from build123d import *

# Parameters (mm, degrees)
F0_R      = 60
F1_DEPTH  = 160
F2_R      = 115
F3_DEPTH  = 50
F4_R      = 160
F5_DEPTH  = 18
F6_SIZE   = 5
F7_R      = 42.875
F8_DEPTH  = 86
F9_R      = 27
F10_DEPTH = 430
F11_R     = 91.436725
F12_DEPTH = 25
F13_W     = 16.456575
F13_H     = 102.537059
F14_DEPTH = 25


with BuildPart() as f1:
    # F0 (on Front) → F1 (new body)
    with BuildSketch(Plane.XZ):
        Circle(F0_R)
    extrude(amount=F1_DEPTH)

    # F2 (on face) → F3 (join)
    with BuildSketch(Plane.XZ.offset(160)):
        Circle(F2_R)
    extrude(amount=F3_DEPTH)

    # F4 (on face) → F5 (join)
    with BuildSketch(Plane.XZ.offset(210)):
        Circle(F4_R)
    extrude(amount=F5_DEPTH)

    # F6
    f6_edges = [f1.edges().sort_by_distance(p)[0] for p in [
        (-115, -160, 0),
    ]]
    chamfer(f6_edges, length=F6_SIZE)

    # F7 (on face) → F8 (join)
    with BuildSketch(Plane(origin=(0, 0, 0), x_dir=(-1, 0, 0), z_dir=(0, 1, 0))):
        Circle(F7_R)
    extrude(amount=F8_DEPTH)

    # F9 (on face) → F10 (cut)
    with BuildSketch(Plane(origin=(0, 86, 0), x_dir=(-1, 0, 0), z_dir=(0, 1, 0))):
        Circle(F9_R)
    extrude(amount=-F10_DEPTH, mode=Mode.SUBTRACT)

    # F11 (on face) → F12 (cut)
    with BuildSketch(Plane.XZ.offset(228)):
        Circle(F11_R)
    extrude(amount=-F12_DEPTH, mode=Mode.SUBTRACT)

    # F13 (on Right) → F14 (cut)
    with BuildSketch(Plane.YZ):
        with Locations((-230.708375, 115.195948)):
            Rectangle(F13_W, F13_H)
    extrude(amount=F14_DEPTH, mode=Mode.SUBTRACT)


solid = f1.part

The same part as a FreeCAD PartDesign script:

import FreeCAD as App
import Part
import Sketcher
from FreeCAD import Vector
Q = App.Units.Quantity


def edges_at(feature, points):
    """Names of the edges that pass closest to the given points."""
    edges = feature.Shape.Edges
    near = lambda p: min(range(len(edges)), key=lambda i: edges[i].distToShape(Part.Vertex(*p))[0])
    return sorted({f"Edge{near(p) + 1}" for p in points})


def add_polygon(sketch, points):
    """Adds a closed chain of lines whose ends are joined by coincident constraints."""
    first, n = sketch.GeometryCount, len(points)
    for a, b in zip(points, points[1:] + points[:1]):
        sketch.addGeometry(Part.LineSegment(App.Vector(*a, 0), App.Vector(*b, 0)), False)
    for i in range(n):
        sketch.addConstraint(Sketcher.Constraint("Coincident", first + i, 2, first + (i + 1) % n, 1))

doc = App.newDocument("Part")
body = doc.addObject("PartDesign::Body", "Body")

sketch1 = body.newObject("Sketcher::SketchObject", "Sketch")
sketch1.AttachmentSupport = (doc.getObject("XZ_Plane"), [""])
sketch1.MapMode = "FlatFace"
sketch1.addGeometry(Part.Circle(Vector(0, 0, 0), Vector(0, 0, 1), 60), False)
sketch1.addConstraint([
    Sketcher.Constraint("Coincident", 0, 3, -1, 1),
    Sketcher.Constraint("Diameter", 0, Q("120 mm")),
])
pad1 = body.newObject("PartDesign::Pad", "Pad")
pad1.Profile = sketch1
pad1.Length = 160

sketch2 = body.newObject("Sketcher::SketchObject", "Sketch001")
sketch2.AttachmentSupport = (doc.getObject("XZ_Plane"), [""])
sketch2.MapMode = "FlatFace"
sketch2.AttachmentOffset = App.Placement(Vector(0, 0, 160), App.Rotation())
sketch2.addGeometry(Part.Circle(Vector(0, 0, 0), Vector(0, 0, 1), 115), False)
sketch2.addConstraint([
    Sketcher.Constraint("Coincident", 0, 3, -1, 1),
    Sketcher.Constraint("Diameter", 0, Q("230 mm")),
])
pad2 = body.newObject("PartDesign::Pad", "Pad001")
pad2.Profile = sketch2
pad2.Length = 50

sketch3 = body.newObject("Sketcher::SketchObject", "Sketch002")
sketch3.AttachmentSupport = (doc.getObject("XZ_Plane"), [""])
sketch3.MapMode = "FlatFace"
sketch3.AttachmentOffset = App.Placement(Vector(0, 0, 210), App.Rotation())
sketch3.addGeometry(Part.Circle(Vector(0, 0, 0), Vector(0, 0, 1), 160), False)
sketch3.addConstraint([
    Sketcher.Constraint("Coincident", 0, 3, -1, 1),
    Sketcher.Constraint("Diameter", 0, Q("320 mm")),
])
pad3 = body.newObject("PartDesign::Pad", "Pad002")
pad3.Profile = sketch3
pad3.Length = 18
doc.recompute()

chamfer = body.newObject("PartDesign::Chamfer", "Chamfer")
chamfer.Base = (pad3, edges_at(pad3, [(-115, -160, 0)]))
chamfer.Size = 5

sketch4 = body.newObject("Sketcher::SketchObject", "Sketch003")
sketch4.AttachmentSupport = (doc.getObject("XZ_Plane"), [""])
sketch4.MapMode = "FlatFace"
sketch4.addGeometry(Part.Circle(Vector(0, 0, 0), Vector(0, 0, 1), 43), False)
sketch4.addConstraint([
    Sketcher.Constraint("Coincident", 0, 3, -1, 1),
    Sketcher.Constraint("Diameter", 0, Q("85.75 mm")),
])
pad4 = body.newObject("PartDesign::Pad", "Pad003")
pad4.Profile = sketch4
pad4.Length = 86
pad4.Reversed = True

sketch5 = body.newObject("Sketcher::SketchObject", "Sketch004")
sketch5.AttachmentSupport = (doc.getObject("XZ_Plane"), [""])
sketch5.MapMode = "FlatFace"
sketch5.AttachmentOffset = App.Placement(Vector(0, 0, -86), App.Rotation())
sketch5.addGeometry(Part.Circle(Vector(0, 0, 0), Vector(0, 0, 1), 27), False)
sketch5.addConstraint([
    Sketcher.Constraint("Coincident", 0, 3, -1, 1),
    Sketcher.Constraint("Diameter", 0, Q("54 mm")),
])
pocket1 = body.newObject("PartDesign::Pocket", "Pocket")
pocket1.Profile = sketch5
pocket1.Length = 430
pocket1.Reversed = True

sketch6 = body.newObject("Sketcher::SketchObject", "Sketch005")
sketch6.AttachmentSupport = (doc.getObject("XZ_Plane"), [""])
sketch6.MapMode = "FlatFace"
sketch6.AttachmentOffset = App.Placement(Vector(0, 0, 228), App.Rotation())
sketch6.addGeometry(Part.Circle(Vector(0, 0, 0), Vector(0, 0, 1), 91), False)
sketch6.addConstraint([
    Sketcher.Constraint("Coincident", 0, 3, -1, 1),
    Sketcher.Constraint("Diameter", 0, Q("182.87345 mm")),
])
pocket2 = body.newObject("PartDesign::Pocket", "Pocket001")
pocket2.Profile = sketch6
pocket2.Length = 25

sketch7 = body.newObject("Sketcher::SketchObject", "Sketch006")
sketch7.AttachmentSupport = (doc.getObject("YZ_Plane"), [""])
sketch7.MapMode = "FlatFace"
add_polygon(sketch7, [(-239, 166), (-239, 64), (-222, 64), (-222, 166)])
sketch7.addConstraint([
    Sketcher.Constraint("Vertical", 0),
    Sketcher.Constraint("Horizontal", 1),
    Sketcher.Constraint("Vertical", 2),
    Sketcher.Constraint("Horizontal", 3),
    Sketcher.Constraint("DistanceY", 0, 2, 0, 1, Q("102.537059 mm")),
    Sketcher.Constraint("DistanceX", 1, 1, 1, 2, Q("16.456575 mm")),
    Sketcher.Constraint("DistanceY", -1, 1, 0, 2, Q("63.927419 mm")),
    Sketcher.Constraint("DistanceX", 0, 2, -1, 1, Q("238.936663 mm")),
])
pocket3 = body.newObject("PartDesign::Pocket", "Pocket002")
pocket3.Profile = sketch7
pocket3.Length = 25
pocket3.Reversed = True

doc.recompute()
